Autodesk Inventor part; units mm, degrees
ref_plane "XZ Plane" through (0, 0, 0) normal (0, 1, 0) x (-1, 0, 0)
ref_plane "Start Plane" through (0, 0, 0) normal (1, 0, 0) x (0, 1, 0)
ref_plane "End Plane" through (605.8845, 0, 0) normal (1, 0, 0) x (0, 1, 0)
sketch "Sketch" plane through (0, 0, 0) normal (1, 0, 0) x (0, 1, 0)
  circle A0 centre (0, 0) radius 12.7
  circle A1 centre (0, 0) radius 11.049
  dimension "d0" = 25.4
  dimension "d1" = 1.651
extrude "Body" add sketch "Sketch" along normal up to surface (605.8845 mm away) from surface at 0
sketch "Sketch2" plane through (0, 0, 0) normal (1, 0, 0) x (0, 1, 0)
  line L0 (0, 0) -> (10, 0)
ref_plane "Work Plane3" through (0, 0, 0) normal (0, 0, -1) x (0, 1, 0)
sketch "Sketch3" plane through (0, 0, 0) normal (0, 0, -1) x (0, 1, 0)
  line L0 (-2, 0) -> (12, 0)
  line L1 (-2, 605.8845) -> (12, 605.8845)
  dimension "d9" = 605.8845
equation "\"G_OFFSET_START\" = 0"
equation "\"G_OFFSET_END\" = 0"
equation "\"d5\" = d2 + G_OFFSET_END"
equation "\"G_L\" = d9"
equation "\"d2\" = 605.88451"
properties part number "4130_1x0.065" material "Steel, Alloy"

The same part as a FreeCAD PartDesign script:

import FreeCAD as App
import Part
import Sketcher
Q = App.Units.Quantity

doc = App.newDocument("Part")
params = doc.addObject("Spreadsheet::Sheet", "Params")
for row, (alias, value) in enumerate([
    ("sketch1_diameter", "1 in"),
    ("sketch1_diameter2", "0.87 in"),
    ("pad1_length", "605.8845 mm"),
], start=1):
    params.set(f"A{row}", alias)
    params.set(f"B{row}", "=" + value)
    params.setAlias(f"B{row}", alias)

body = doc.addObject("PartDesign::Body", "Body")

sketch1 = doc.addObject("Sketcher::SketchObject", "Sketch")
body.addObject(sketch1)
sketch1.AttachmentSupport = (doc.YZ_Plane, [""])
sketch1.MapMode = "FlatFace"
sketch1.addGeometry(Part.Circle(App.Vector(0, 0, 0), App.Vector(0, 0, 1), 13), False)
sketch1.addGeometry(Part.Circle(App.Vector(0, 0, 0), App.Vector(0, 0, 1), 11), False)
sketch1.addConstraint(Sketcher.Constraint("Coincident", 0, 3, -1, 1))
sketch1.addConstraint(Sketcher.Constraint("Coincident", 1, 3, -1, 1))
sketch1.addConstraint(Sketcher.Constraint("Diameter", 0, Q("1 in")))
sketch1.addConstraint(Sketcher.Constraint("Diameter", 1, Q("0.87 in")))
sketch1.setExpression("Constraints[2]", "Params.sketch1_diameter")
sketch1.setExpression("Constraints[3]", "Params.sketch1_diameter2")
pad1 = doc.addObject("PartDesign::Pad", "Pad")
body.addObject(pad1)
pad1.Profile = sketch1
pad1.setExpression("Length", "Params.pad1_length")

doc.recompute()
